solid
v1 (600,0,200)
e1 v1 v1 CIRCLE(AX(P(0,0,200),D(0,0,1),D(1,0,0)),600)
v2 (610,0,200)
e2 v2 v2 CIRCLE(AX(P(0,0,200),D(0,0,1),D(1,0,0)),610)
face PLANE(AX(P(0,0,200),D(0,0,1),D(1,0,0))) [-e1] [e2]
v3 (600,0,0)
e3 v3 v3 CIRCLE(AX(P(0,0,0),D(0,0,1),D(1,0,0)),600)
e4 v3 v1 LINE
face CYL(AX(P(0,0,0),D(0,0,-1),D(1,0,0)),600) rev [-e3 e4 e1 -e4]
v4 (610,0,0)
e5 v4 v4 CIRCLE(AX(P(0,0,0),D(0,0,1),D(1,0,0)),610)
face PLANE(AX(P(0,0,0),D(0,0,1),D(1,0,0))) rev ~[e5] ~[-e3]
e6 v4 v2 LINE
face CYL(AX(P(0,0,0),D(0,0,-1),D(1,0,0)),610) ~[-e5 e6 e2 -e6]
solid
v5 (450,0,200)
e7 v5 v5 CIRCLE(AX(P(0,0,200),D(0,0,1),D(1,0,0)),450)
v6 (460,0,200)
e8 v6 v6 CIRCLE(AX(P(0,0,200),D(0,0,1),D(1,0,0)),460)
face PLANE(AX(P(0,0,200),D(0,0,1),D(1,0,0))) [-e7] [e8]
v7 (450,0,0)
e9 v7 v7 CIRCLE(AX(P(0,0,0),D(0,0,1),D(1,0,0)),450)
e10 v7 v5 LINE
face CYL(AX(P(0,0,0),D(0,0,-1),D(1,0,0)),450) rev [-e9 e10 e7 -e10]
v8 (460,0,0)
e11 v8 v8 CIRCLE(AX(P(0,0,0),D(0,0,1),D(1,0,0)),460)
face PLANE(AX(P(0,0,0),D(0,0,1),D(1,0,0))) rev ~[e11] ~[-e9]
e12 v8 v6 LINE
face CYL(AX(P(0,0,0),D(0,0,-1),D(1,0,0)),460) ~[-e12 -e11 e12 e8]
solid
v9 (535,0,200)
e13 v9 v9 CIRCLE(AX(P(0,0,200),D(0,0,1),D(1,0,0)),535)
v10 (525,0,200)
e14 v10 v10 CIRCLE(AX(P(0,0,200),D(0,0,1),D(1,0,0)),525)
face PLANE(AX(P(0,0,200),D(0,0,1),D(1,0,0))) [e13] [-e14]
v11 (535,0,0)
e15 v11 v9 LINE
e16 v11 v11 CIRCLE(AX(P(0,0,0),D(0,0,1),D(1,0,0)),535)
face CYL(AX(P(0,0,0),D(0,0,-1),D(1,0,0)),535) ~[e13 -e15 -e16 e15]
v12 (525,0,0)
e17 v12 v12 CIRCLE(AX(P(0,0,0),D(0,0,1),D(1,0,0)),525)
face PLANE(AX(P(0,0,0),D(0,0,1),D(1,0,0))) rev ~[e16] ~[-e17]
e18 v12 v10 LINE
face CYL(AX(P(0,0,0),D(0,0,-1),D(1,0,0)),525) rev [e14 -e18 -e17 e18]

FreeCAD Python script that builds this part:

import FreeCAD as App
import Part
import Sketcher

V = App.Vector
Q = App.Units.Quantity

doc = App.newDocument("Part")
params = doc.addObject("Spreadsheet::Sheet", "Params")
for row, (alias, value) in enumerate([
    ("sketch1_diameter", "1220 mm"),
    ("sketch1_diameter2", "1200 mm"),
    ("pad1_length", "200 mm"),
    ("sketch2_diameter", "920 mm"),
    ("sketch2_diameter2", "900 mm"),
    ("pad2_length", "200 mm"),
    ("sketch3_diameter", "1070 mm"),
    ("sketch3_diameter2", "1050 mm"),
    ("pad3_length", "200 mm"),
], start=1):
    params.set(f"A{row}", alias)
    params.set(f"B{row}", "=" + value)
    params.setAlias(f"B{row}", alias)

body = doc.addObject("PartDesign::Body", "Body")

sketch1 = body.newObject("Sketcher::SketchObject", "Sketch")
sketch1.AttachmentSupport = (doc.getObject("XY_Plane"), [""])
sketch1.MapMode = "FlatFace"
sketch1.addGeometry([
    Part.Circle(V(0, 0, 0), V(0, 0, 1), 610),
    Part.Circle(V(0, 0, 0), V(0, 0, 1), 600),
], False)
sketch1.addConstraint([
    Sketcher.Constraint("Coincident", 0, 3, -1, 1),
    Sketcher.Constraint("Coincident", 1, 3, -1, 1),
    Sketcher.Constraint("Diameter", 0, Q("1220 mm")),
    Sketcher.Constraint("Diameter", 1, Q("1200 mm")),
])
sketch1.setExpression("Constraints[2]", "Params.sketch1_diameter")
sketch1.setExpression("Constraints[3]", "Params.sketch1_diameter2")
pad1 = body.newObject("PartDesign::Pad", "Pad")
pad1.Profile = sketch1
pad1.setExpression("Length", "Params.pad1_length")
body2 = doc.addObject("PartDesign::Body", "Body001")

sketch2 = body2.newObject("Sketcher::SketchObject", "Sketch001")
sketch2.AttachmentSupport = (doc.getObject("XY_Plane001"), [""])
sketch2.MapMode = "FlatFace"
sketch2.addGeometry([
    Part.Circle(V(0, 0, 0), V(0, 0, 1), 460),
    Part.Circle(V(0, 0, 0), V(0, 0, 1), 450),
], False)
sketch2.addConstraint([
    Sketcher.Constraint("Coincident", 0, 3, -1, 1),
    Sketcher.Constraint("Coincident", 1, 3, -1, 1),
    Sketcher.Constraint("Diameter", 0, Q("920 mm")),
    Sketcher.Constraint("Diameter", 1, Q("900 mm")),
])
sketch2.setExpression("Constraints[2]", "Params.sketch2_diameter")
sketch2.setExpression("Constraints[3]", "Params.sketch2_diameter2")
pad2 = body2.newObject("PartDesign::Pad", "Pad001")
pad2.Profile = sketch2
pad2.setExpression("Length", "Params.pad2_length")
body3 = doc.addObject("PartDesign::Body", "Body002")

sketch3 = body3.newObject("Sketcher::SketchObject", "Sketch002")
sketch3.AttachmentSupport = (doc.getObject("XY_Plane002"), [""])
sketch3.MapMode = "FlatFace"
sketch3.addGeometry([
    Part.Circle(V(0, 0, 0), V(0, 0, 1), 535),
    Part.Circle(V(0, 0, 0), V(0, 0, 1), 525),
], False)
sketch3.addConstraint([
    Sketcher.Constraint("Coincident", 0, 3, -1, 1),
    Sketcher.Constraint("Coincident", 1, 3, -1, 1),
    Sketcher.Constraint("Diameter", 0, Q("1070 mm")),
    Sketcher.Constraint("Diameter", 1, Q("1050 mm")),
])
sketch3.setExpression("Constraints[2]", "Params.sketch3_diameter")
sketch3.setExpression("Constraints[3]", "Params.sketch3_diameter2")
pad3 = body3.newObject("PartDesign::Pad", "Pad002")
pad3.Profile = sketch3
pad3.setExpression("Length", "Params.pad3_length")

doc.recompute()
